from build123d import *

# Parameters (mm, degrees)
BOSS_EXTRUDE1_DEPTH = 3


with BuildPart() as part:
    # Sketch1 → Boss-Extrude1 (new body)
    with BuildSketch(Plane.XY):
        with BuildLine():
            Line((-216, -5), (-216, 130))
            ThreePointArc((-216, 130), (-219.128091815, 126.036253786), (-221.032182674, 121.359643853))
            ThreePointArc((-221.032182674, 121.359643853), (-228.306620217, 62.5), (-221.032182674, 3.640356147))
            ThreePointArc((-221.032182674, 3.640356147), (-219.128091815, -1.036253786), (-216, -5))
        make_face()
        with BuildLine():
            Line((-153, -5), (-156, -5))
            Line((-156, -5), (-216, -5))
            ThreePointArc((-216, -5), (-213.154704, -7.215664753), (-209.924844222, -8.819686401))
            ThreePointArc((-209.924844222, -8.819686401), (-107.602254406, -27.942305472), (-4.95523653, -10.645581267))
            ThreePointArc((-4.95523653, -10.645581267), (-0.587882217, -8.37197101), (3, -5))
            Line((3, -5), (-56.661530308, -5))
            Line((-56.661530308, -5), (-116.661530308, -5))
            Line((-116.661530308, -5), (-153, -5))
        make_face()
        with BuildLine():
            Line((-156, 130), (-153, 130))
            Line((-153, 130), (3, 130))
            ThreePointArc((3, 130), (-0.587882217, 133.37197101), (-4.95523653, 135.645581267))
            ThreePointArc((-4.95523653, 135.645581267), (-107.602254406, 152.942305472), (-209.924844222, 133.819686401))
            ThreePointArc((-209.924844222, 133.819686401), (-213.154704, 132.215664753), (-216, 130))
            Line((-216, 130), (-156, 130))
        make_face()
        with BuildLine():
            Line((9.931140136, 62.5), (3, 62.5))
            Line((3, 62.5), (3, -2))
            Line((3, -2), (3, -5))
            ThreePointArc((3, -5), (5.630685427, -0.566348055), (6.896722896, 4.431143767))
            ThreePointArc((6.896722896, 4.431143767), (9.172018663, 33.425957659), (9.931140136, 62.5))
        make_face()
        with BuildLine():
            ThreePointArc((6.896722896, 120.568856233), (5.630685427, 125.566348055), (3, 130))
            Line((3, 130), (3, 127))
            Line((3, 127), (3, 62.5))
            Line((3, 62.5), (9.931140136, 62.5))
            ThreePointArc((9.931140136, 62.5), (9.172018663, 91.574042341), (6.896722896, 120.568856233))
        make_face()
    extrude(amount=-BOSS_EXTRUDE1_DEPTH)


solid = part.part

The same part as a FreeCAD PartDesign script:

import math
import FreeCAD as App
import Part
import Sketcher
from FreeCAD import Vector
Q = App.Units.Quantity

doc = App.newDocument("Part")
body = doc.addObject("PartDesign::Body", "Body")
body.AllowCompound = True

# Sketch on XY plane
sketch1 = body.newObject("Sketcher::SketchObject", "Sketch")
sketch1.AttachmentSupport = (doc.getObject("XY_Plane"), [""])
sketch1.MapMode = "FlatFace"
sketch1.addGeometry([
    Part.LineSegment(Vector(-216, -5, 0), Vector(-216, 130, 0)),  # 0
    Part.ArcOfCircle(Part.Circle(Vector(-204, 117, 0), Vector(0, 0, 1), 18), math.radians(134), math.radians(166)),  # 1
    Part.ArcOfCircle(Part.Circle(Vector(13, 62, 0), Vector(0, 0, 1), 242), math.radians(166), math.radians(194)),  # 2
    Part.ArcOfCircle(Part.Circle(Vector(-204, 8, 0), Vector(0, 0, 1), 18), math.radians(-166), math.radians(-134)),  # 3
    Part.ArcOfCircle(Part.Circle(Vector(-204, 8, 0), Vector(0, 0, 1), 18), math.radians(-134), math.radians(-111)),  # 4
    Part.ArcOfCircle(Part.Circle(Vector(-105, 270, 0), Vector(0, 0, 1), 298), math.radians(-111), math.radians(-70)),  # 5
    Part.ArcOfCircle(Part.Circle(Vector(-11, 6, 0), Vector(0, 0, 1), 18), math.radians(-70), math.radians(-39)),  # 6
    Part.LineSegment(Vector(3, -5, 0), Vector(-216, -5, 0)),  # 7
    Part.ArcOfCircle(Part.Circle(Vector(-11, 119, 0), Vector(0, 0, 1), 18), math.radians(39), math.radians(70)),  # 8
    Part.ArcOfCircle(Part.Circle(Vector(-105, -145, 0), Vector(0, 0, 1), 298), math.radians(70), math.radians(111)),  # 9
    Part.ArcOfCircle(Part.Circle(Vector(-204, 117, 0), Vector(0, 0, 1), 18), math.radians(111), math.radians(134)),  # 10
    Part.LineSegment(Vector(-216, 130, 0), Vector(3, 130, 0)),  # 11
    Part.ArcOfCircle(Part.Circle(Vector(-11, 6, 0), Vector(0, 0, 1), 18), math.radians(-39), math.radians(-6)),  # 12
    Part.ArcOfCircle(Part.Circle(Vector(-547, 63, 0), Vector(0, 0, 1), 557), math.radians(-5.98), math.radians(0)),  # 13
    Part.ArcOfCircle(Part.Circle(Vector(-547, 62, 0), Vector(0, 0, 1), 557), math.radians(0), math.radians(5.98)),  # 14
    Part.ArcOfCircle(Part.Circle(Vector(-11, 119, 0), Vector(0, 0, 1), 18), math.radians(6), math.radians(39)),  # 15
    Part.LineSegment(Vector(3, 130, 0), Vector(3, -5, 0)),  # 16
], False)
sketch1.addConstraint([
    Sketcher.Constraint("Coincident", 0, 2, 1, 1),
    Sketcher.Constraint("Tangent", 1, 2, 2, 1),
    Sketcher.Constraint("Tangent", 2, 2, 3, 1),
    Sketcher.Constraint("Coincident", 3, 2, 0, 1),
    Sketcher.Constraint("Tangent", 4, 2, 5, 1),
    Sketcher.Constraint("Tangent", 5, 2, 6, 1),
    Sketcher.Constraint("Coincident", 6, 2, 7, 1),
    Sketcher.Constraint("Coincident", 7, 2, 4, 1),
    Sketcher.Constraint("Tangent", 8, 2, 9, 1),
    Sketcher.Constraint("Tangent", 9, 2, 10, 1),
    Sketcher.Constraint("Coincident", 10, 2, 11, 1),
    Sketcher.Constraint("Coincident", 11, 2, 8, 1),
    Sketcher.Constraint("Tangent", 12, 2, 13, 1),
    Sketcher.Constraint("Coincident", 13, 2, 14, 1),
    Sketcher.Constraint("Tangent", 14, 2, 15, 1),
    Sketcher.Constraint("Coincident", 15, 2, 16, 1),
    Sketcher.Constraint("Coincident", 16, 2, 12, 1),
    Sketcher.Constraint("Vertical", 0),
    Sketcher.Constraint("Horizontal", 7),
    Sketcher.Constraint("Horizontal", 11),
    Sketcher.Constraint("Vertical", 16),
    Sketcher.Constraint("Coincident", 4, 3, 3, 3),
    Sketcher.Constraint("Coincident", 10, 3, 1, 3),
    Sketcher.Constraint("Coincident", 12, 3, 6, 3),
    Sketcher.Constraint("Coincident", 14, 3, 13, 3),
    Sketcher.Constraint("Coincident", 15, 3, 8, 3),
    Sketcher.Constraint("Coincident", 7, 2, 3, 2),
    Sketcher.Constraint("Coincident", 10, 2, 0, 2),
    Sketcher.Constraint("Coincident", 15, 2, 11, 2),
    Sketcher.Constraint("Coincident", 16, 2, 6, 2),
    Sketcher.Constraint("Equal", 1, 3),
    Sketcher.Constraint("Equal", 4, 6),
    Sketcher.Constraint("Equal", 6, 8),
    Sketcher.Constraint("Equal", 5, 9),
    Sketcher.Constraint("Horizontal", 2, 3, 13, 3),
    Sketcher.Constraint("Horizontal", 14, 3, 13, 2),
    Sketcher.Constraint("Vertical", 1, 3, 3, 3),
    Sketcher.Constraint("Radius", 1, Q("18 mm")),
    Sketcher.Constraint("DistanceX", 7, 2, 7, 1, Q("219 mm")),
    Sketcher.Constraint("DistanceY", 0, 1, 0, 2, Q("135 mm")),
    Sketcher.Constraint("DistanceX", 0, 2, -1, 1, Q("216 mm")),
    Sketcher.Constraint("DistanceY", -1, 1, 0, 2, Q("130 mm")),
    Sketcher.Constraint("Radius", 5, Q("297.51105 mm")),
    Sketcher.Constraint("Radius", 2, Q("241.762686 mm")),
    Sketcher.Constraint("Radius", 13, Q("557.141534 mm")),
    Sketcher.Constraint("DistanceY", 3, 3, 1, 2, Q("113.337 mm")),
    Sketcher.Constraint("DistanceX", 13, 3, 5, 3, Q("442.2583 mm")),
])
pad1 = body.newObject("PartDesign::Pad", "Pad")
pad1.Profile = sketch1
pad1.Length = 3
pad1.Reversed = True

doc.recompute()
